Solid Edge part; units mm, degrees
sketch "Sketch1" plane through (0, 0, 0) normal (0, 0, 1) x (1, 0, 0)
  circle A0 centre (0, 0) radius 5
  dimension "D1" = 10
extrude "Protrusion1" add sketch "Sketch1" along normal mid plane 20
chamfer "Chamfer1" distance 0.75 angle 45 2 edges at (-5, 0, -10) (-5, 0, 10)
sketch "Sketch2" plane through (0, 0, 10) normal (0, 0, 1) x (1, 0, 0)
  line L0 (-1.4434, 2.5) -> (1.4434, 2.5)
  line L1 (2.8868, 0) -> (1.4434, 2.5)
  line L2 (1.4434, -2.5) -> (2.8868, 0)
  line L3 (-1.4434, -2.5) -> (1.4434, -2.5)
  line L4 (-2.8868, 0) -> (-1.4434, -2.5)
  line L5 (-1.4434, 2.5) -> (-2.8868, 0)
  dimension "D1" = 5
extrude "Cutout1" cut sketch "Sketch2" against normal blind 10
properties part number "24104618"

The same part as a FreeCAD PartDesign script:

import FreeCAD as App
import Part
import Sketcher
from FreeCAD import Vector
Q = App.Units.Quantity


def edges_at(feature, points):
    """Names of the edges that pass closest to the given points."""
    edges = feature.Shape.Edges
    near = lambda p: min(range(len(edges)), key=lambda i: edges[i].distToShape(Part.Vertex(*p))[0])
    return sorted({f"Edge{near(p) + 1}" for p in points})

doc = App.newDocument("Part")
body = doc.addObject("PartDesign::Body", "Body")

sketch1 = body.newObject("Sketcher::SketchObject", "Sketch")
sketch1.AttachmentSupport = (doc.getObject("XY_Plane"), [""])
sketch1.MapMode = "FlatFace"
sketch1.addGeometry(Part.Circle(Vector(0, 0, 0), Vector(0, 0, 1), 5), False)
sketch1.addConstraint([
    Sketcher.Constraint("Coincident", 0, 3, -1, 1),
    Sketcher.Constraint("Diameter", 0, Q("10 mm")),
])
pad1 = body.newObject("PartDesign::Pad", "Pad")
pad1.Profile = sketch1
pad1.Length = 20
pad1.Midplane = True
doc.recompute()

chamfer = body.newObject("PartDesign::Chamfer", "Chamfer")
chamfer.Base = (pad1, edges_at(pad1, [(-5, 0, -10), (-5, 0, 10)]))
chamfer.Size = 0.75

sketch2 = body.newObject("Sketcher::SketchObject", "Sketch001")
sketch2.AttachmentSupport = (doc.getObject("XY_Plane"), [""])
sketch2.MapMode = "FlatFace"
sketch2.AttachmentOffset = App.Placement(Vector(0, 0, 10), App.Rotation())
sketch2.addGeometry([
    Part.LineSegment(Vector(1.4, 2.5, 0), Vector(-1.4, 2.5, 0)),
    Part.LineSegment(Vector(-1.4, 2.5, 0), Vector(-2.9, 0, 0)),
    Part.LineSegment(Vector(-2.9, 0, 0), Vector(-1.4, -2.5, 0)),
    Part.LineSegment(Vector(-1.4, -2.5, 0), Vector(1.4, -2.5, 0)),
    Part.LineSegment(Vector(1.4, -2.5, 0), Vector(2.9, 0, 0)),
    Part.LineSegment(Vector(2.9, 0, 0), Vector(1.4, 2.5, 0)),
], False)
sketch2.addConstraint([
    Sketcher.Constraint("Coincident", 0, 2, 1, 1),
    Sketcher.Constraint("Coincident", 1, 2, 2, 1),
    Sketcher.Constraint("Coincident", 2, 2, 3, 1),
    Sketcher.Constraint("Coincident", 3, 2, 4, 1),
    Sketcher.Constraint("Coincident", 4, 2, 5, 1),
    Sketcher.Constraint("Coincident", 5, 2, 0, 1),
    Sketcher.Constraint("Horizontal", 0),
    Sketcher.Constraint("Horizontal", 3),
    Sketcher.Constraint("Symmetric", 0, 2, 3, 2, -1, 1),
    Sketcher.Constraint("Symmetric", 1, 2, 4, 2, -1, 1),
    Sketcher.Constraint("PointOnObject", 1, 2, -1),
    Sketcher.Constraint("Parallel", 2, 5),
    Sketcher.Constraint("Vertical", 0, 2, 2, 2),
    Sketcher.Constraint("Angle", 1, Q("-120.0004 deg")),
    Sketcher.Constraint("DistanceY", 2, 2, 0, 2, Q("5 mm")),
    Sketcher.Constraint("DistanceX", 0, 2, 0, 1, Q("2.8868 mm")),
])
pocket1 = body.newObject("PartDesign::Pocket", "Pocket")
pocket1.Profile = sketch2
pocket1.Length = 10

doc.recompute()
